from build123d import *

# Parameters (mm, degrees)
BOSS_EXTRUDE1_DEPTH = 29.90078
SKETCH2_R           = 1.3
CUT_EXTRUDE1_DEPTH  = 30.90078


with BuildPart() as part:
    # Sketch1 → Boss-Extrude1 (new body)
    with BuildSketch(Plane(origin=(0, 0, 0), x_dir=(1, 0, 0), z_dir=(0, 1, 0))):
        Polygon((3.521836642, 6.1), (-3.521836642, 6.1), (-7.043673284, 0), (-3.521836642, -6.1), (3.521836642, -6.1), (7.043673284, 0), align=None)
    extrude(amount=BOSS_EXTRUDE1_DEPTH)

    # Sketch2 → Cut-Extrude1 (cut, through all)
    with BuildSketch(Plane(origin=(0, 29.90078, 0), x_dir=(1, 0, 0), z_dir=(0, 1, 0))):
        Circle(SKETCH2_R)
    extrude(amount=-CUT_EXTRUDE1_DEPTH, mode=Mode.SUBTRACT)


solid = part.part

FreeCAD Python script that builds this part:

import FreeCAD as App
import Part
import Sketcher
Q = App.Units.Quantity

doc = App.newDocument("Part")
body = doc.addObject("PartDesign::Body", "Body")

# Sketch on XZ plane
sketch1 = doc.addObject("Sketcher::SketchObject", "Sketch")
body.addObject(sketch1)
sketch1.AttachmentSupport = (doc.XZ_Plane, [""])
sketch1.MapMode = "FlatFace"
sketch1.addGeometry(Part.LineSegment(App.Vector(4, -6, 0), App.Vector(-4, -6, 0)), False)
sketch1.addGeometry(Part.LineSegment(App.Vector(-4, -6, 0), App.Vector(-7, 0, 0)), False)
sketch1.addGeometry(Part.LineSegment(App.Vector(-7, 0, 0), App.Vector(-4, 6, 0)), False)
sketch1.addGeometry(Part.LineSegment(App.Vector(-4, 6, 0), App.Vector(4, 6, 0)), False)
sketch1.addGeometry(Part.LineSegment(App.Vector(4, 6, 0), App.Vector(7, 0, 0)), False)
sketch1.addGeometry(Part.LineSegment(App.Vector(7, 0, 0), App.Vector(4, -6, 0)), False)
sketch1.addConstraint(Sketcher.Constraint("Coincident", 0, 2, 1, 1))
sketch1.addConstraint(Sketcher.Constraint("Coincident", 1, 2, 2, 1))
sketch1.addConstraint(Sketcher.Constraint("Coincident", 2, 2, 3, 1))
sketch1.addConstraint(Sketcher.Constraint("Coincident", 3, 2, 4, 1))
sketch1.addConstraint(Sketcher.Constraint("Coincident", 4, 2, 5, 1))
sketch1.addConstraint(Sketcher.Constraint("Coincident", 5, 2, 0, 1))
sketch1.addConstraint(Sketcher.Constraint("Horizontal", 0))
sketch1.addConstraint(Sketcher.Constraint("Horizontal", 3))
sketch1.addConstraint(Sketcher.Constraint("Symmetric", 0, 2, 3, 2, -1, 1))
sketch1.addConstraint(Sketcher.Constraint("Symmetric", 1, 2, 4, 2, -1, 1))
sketch1.addConstraint(Sketcher.Constraint("PointOnObject", 1, 2, -1))
sketch1.addConstraint(Sketcher.Constraint("Parallel", 2, 5))
sketch1.addConstraint(Sketcher.Constraint("Vertical", 0, 2, 2, 2))
sketch1.addConstraint(Sketcher.Constraint("Angle", 1, Q("120 deg")))
sketch1.addConstraint(Sketcher.Constraint("DistanceY", 0, 2, -1, 1, 6.1))
sketch1.addConstraint(Sketcher.Constraint("DistanceX", 0, 2, 0, 1, 7.043673))
pad1 = doc.addObject("PartDesign::Pad", "Pad")
body.addObject(pad1)
pad1.Profile = sketch1
pad1.Length = 29.90078
pad1.Reversed = True

# Sketch on XZ plane
sketch2 = doc.addObject("Sketcher::SketchObject", "Sketch001")
body.addObject(sketch2)
sketch2.AttachmentSupport = (doc.XZ_Plane, [""])
sketch2.MapMode = "FlatFace"
sketch2.AttachmentOffset = App.Placement(App.Vector(0, 0, -29.90078), App.Rotation())
sketch2.addGeometry(Part.Circle(App.Vector(0, 0, 0), App.Vector(0, 0, 1), 1.3), False)
sketch2.addConstraint(Sketcher.Constraint("Coincident", 0, 3, -1, 1))
sketch2.addConstraint(Sketcher.Constraint("Diameter", 0, 2.6))
pocket1 = doc.addObject("PartDesign::Pocket", "Pocket")
body.addObject(pocket1)
pocket1.Profile = sketch2
pocket1.Type = "ThroughAll"
pocket1.Reversed = True

doc.recompute()
